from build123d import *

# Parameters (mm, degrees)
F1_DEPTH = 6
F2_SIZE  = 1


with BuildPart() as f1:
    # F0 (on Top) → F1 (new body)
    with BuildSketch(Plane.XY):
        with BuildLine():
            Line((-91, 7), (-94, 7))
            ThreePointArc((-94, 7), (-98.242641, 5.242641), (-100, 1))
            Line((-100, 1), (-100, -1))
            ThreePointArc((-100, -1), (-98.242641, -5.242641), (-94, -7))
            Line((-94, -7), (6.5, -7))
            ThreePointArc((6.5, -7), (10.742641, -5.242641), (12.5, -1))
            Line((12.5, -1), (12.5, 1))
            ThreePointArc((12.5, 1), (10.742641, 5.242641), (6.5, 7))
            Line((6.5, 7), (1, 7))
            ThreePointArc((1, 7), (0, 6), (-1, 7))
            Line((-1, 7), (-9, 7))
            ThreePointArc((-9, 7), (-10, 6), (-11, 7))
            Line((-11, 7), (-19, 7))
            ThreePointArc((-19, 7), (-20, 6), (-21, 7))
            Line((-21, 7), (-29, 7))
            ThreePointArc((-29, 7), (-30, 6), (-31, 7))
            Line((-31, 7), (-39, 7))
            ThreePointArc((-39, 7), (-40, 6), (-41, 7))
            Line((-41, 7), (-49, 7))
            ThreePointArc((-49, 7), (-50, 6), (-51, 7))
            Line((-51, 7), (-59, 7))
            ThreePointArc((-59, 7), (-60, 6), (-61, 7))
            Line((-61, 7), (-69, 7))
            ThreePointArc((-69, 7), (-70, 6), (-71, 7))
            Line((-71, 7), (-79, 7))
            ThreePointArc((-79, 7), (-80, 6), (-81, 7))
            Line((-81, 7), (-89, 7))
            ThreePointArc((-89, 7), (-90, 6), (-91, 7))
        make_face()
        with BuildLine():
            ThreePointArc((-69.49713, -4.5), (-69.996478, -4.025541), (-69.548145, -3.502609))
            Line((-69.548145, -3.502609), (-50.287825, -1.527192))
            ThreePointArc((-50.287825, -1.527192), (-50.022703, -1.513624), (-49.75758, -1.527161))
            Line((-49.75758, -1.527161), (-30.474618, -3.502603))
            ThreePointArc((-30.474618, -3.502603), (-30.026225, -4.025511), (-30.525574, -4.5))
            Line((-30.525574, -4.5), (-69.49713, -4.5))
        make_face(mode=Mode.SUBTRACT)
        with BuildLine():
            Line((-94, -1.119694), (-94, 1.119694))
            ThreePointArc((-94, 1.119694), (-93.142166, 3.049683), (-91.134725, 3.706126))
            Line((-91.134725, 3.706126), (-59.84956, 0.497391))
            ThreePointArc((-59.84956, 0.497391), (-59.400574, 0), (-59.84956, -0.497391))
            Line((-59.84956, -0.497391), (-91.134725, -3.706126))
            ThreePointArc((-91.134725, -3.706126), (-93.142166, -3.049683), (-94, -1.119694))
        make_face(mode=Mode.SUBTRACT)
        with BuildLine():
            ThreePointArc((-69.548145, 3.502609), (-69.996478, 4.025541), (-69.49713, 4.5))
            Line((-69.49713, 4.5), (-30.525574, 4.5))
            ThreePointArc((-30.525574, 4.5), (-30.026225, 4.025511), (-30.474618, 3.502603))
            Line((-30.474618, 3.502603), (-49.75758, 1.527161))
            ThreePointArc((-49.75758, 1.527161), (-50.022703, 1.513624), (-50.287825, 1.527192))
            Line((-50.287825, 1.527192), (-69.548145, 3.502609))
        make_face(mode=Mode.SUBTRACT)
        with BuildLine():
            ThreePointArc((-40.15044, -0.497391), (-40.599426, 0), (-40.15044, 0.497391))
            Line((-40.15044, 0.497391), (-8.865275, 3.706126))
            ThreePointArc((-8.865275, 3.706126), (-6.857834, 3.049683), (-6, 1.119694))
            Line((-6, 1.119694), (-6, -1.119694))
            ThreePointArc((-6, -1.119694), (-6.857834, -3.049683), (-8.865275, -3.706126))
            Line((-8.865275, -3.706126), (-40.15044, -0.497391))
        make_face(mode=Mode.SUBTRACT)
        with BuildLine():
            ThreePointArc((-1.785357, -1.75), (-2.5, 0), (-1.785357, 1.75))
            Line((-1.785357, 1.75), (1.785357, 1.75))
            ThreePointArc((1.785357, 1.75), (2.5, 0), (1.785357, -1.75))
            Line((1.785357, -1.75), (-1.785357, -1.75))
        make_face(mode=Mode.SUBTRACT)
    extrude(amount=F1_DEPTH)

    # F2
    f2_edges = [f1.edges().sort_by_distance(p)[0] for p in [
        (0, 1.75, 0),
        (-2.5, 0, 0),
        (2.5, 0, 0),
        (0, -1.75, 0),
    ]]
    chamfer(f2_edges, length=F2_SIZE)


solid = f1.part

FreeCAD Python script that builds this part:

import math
import FreeCAD as App
import Part
import Sketcher
from FreeCAD import Vector
Q = App.Units.Quantity


def edges_at(feature, points):
    """Names of the edges that pass closest to the given points."""
    edges = feature.Shape.Edges
    near = lambda p: min(range(len(edges)), key=lambda i: edges[i].distToShape(Part.Vertex(*p))[0])
    return sorted({f"Edge{near(p) + 1}" for p in points})

doc = App.newDocument("Part")
params = doc.addObject("Spreadsheet::Sheet", "Params")
for row, (alias, value) in enumerate([
    ("sketch1_radius", "5.999999 mm"),
    ("sketch1_radius2", "1 mm"),
    ("sketch1_radius3", "0.5 mm"),
    ("sketch1_radius4", "2.6 mm"),
    ("sketch1_radius5", "2.5 mm"),
    ("pad1_length", "6 mm"),
    ("chamfer_size", "1 mm"),
], start=1):
    params.set(f"A{row}", alias)
    params.set(f"B{row}", "=" + value)
    params.setAlias(f"B{row}", alias)

body = doc.addObject("PartDesign::Body", "Body")

sketch1 = body.newObject("Sketcher::SketchObject", "Sketch")
sketch1.AttachmentSupport = (doc.getObject("XY_Plane"), [""])
sketch1.MapMode = "FlatFace"
sketch1.addGeometry([
    Part.LineSegment(Vector(-91, 7, 0), Vector(-94, 7, 0)),
    Part.ArcOfCircle(Part.Circle(Vector(-94, 1, 0), Vector(0, 0, 1), 6), math.radians(90), math.radians(180)),
    Part.LineSegment(Vector(-100, 1, 0), Vector(-100, -1, 0)),
    Part.ArcOfCircle(Part.Circle(Vector(-94, -1, 0), Vector(0, 0, 1), 6), math.radians(180), math.radians(270)),
    Part.LineSegment(Vector(-94, -7, 0), Vector(6.5, -7, 0)),
    Part.ArcOfCircle(Part.Circle(Vector(6.5, -1, 0), Vector(0, 0, 1), 6), math.radians(-90), math.radians(0)),
    Part.LineSegment(Vector(12.5, -1, 0), Vector(12.5, 1, 0)),
    Part.ArcOfCircle(Part.Circle(Vector(6.5, 1, 0), Vector(0, 0, 1), 6), math.radians(0), math.radians(90)),
    Part.LineSegment(Vector(6.5, 7, 0), Vector(1, 7, 0)),
    Part.ArcOfCircle(Part.Circle(Vector(0, 7, 0), Vector(0, 0, 1), 1), math.radians(180), math.radians(360)),
    Part.LineSegment(Vector(-1, 7, 0), Vector(-9, 7, 0)),
    Part.ArcOfCircle(Part.Circle(Vector(-10, 7, 0), Vector(0, 0, 1), 1), math.radians(180), math.radians(360)),
    Part.LineSegment(Vector(-11, 7, 0), Vector(-19, 7, 0)),
    Part.ArcOfCircle(Part.Circle(Vector(-20, 7, 0), Vector(0, 0, 1), 1), math.radians(180), math.radians(360)),
    Part.LineSegment(Vector(-21, 7, 0), Vector(-29, 7, 0)),
    Part.ArcOfCircle(Part.Circle(Vector(-30, 7, 0), Vector(0, 0, 1), 1), math.radians(180), math.radians(360)),
    Part.LineSegment(Vector(-31, 7, 0), Vector(-39, 7, 0)),
    Part.ArcOfCircle(Part.Circle(Vector(-40, 7, 0), Vector(0, 0, 1), 1), math.radians(180), math.radians(360)),
    Part.LineSegment(Vector(-41, 7, 0), Vector(-49, 7, 0)),
    Part.ArcOfCircle(Part.Circle(Vector(-50, 7, 0), Vector(0, 0, 1), 1), math.radians(180), math.radians(360)),
    Part.LineSegment(Vector(-51, 7, 0), Vector(-59, 7, 0)),
    Part.ArcOfCircle(Part.Circle(Vector(-60, 7, 0), Vector(0, 0, 1), 1), math.radians(180), math.radians(360)),
    Part.LineSegment(Vector(-61, 7, 0), Vector(-69, 7, 0)),
    Part.ArcOfCircle(Part.Circle(Vector(-70, 7, 0), Vector(0, 0, 1), 1), math.radians(180), math.radians(360)),
    Part.LineSegment(Vector(-71, 7, 0), Vector(-79, 7, 0)),
    Part.ArcOfCircle(Part.Circle(Vector(-80, 7, 0), Vector(0, 0, 1), 1), math.radians(180), math.radians(360)),
    Part.LineSegment(Vector(-81, 7, 0), Vector(-89, 7, 0)),
    Part.ArcOfCircle(Part.Circle(Vector(-90, 7, 0), Vector(0, 0, 1), 1), math.radians(180), math.radians(360)),
    Part.LineSegment(Vector(-30.5, -4.5, 0), Vector(-69.5, -4.5, 0)),
    Part.ArcOfCircle(Part.Circle(Vector(-69.5, -4, 0), Vector(0, 0, 1), 0.5), math.radians(96), math.radians(270)),
    Part.LineSegment(Vector(-69.5, -3.5, 0), Vector(-50.3, -1.5, 0)),
    Part.ArcOfCircle(Part.Circle(Vector(-50, -4.1, 0), Vector(0, 0, 1), 2.6), math.radians(84.15), math.radians(95.86)),
    Part.LineSegment(Vector(-49.8, -1.5, 0), Vector(-30.5, -3.5, 0)),
    Part.ArcOfCircle(Part.Circle(Vector(-30.5, -4, 0), Vector(0, 0, 1), 0.5), math.radians(-90), math.radians(84)),
    Part.ArcOfCircle(Part.Circle(Vector(-91.4, -1.1, 0), Vector(0, 0, 1), 2.6), math.radians(-180), math.radians(-84)),
    Part.LineSegment(Vector(-94, -1.1, 0), Vector(-94, 1.1, 0)),
    Part.ArcOfCircle(Part.Circle(Vector(-91.4, 1.1, 0), Vector(0, 0, 1), 2.6), math.radians(84), math.radians(180)),
    Part.LineSegment(Vector(-91.1, 3.7, 0), Vector(-59.8, 0.5, 0)),
    Part.ArcOfCircle(Part.Circle(Vector(-59.9, 0, 0), Vector(0, 0, 1), 0.5), math.radians(-84), math.radians(84)),
    Part.LineSegment(Vector(-59.8, -0.5, 0), Vector(-91.1, -3.7, 0)),
    Part.LineSegment(Vector(-50.3, 1.5, 0), Vector(-69.5, 3.5, 0)),
    Part.ArcOfCircle(Part.Circle(Vector(-69.5, 4, 0), Vector(0, 0, 1), 0.5), math.radians(90), math.radians(264)),
    Part.LineSegment(Vector(-69.5, 4.5, 0), Vector(-30.5, 4.5, 0)),
    Part.ArcOfCircle(Part.Circle(Vector(-30.5, 4, 0), Vector(0, 0, 1), 0.5), math.radians(-84), math.radians(90)),
    Part.LineSegment(Vector(-30.5, 3.5, 0), Vector(-49.8, 1.5, 0)),
    Part.ArcOfCircle(Part.Circle(Vector(-50, 4.1, 0), Vector(0, 0, 1), 2.6), math.radians(-95.86), math.radians(-84.15)),
    Part.LineSegment(Vector(-8.9, -3.7, 0), Vector(-40.2, -0.5, 0)),
    Part.ArcOfCircle(Part.Circle(Vector(-40.1, 0, 0), Vector(0, 0, 1), 0.5), math.radians(96), math.radians(264)),
    Part.LineSegment(Vector(-40.2, 0.5, 0), Vector(-8.9, 3.7, 0)),
    Part.ArcOfCircle(Part.Circle(Vector(-8.6, 1.1, 0), Vector(0, 0, 1), 2.6), math.radians(0), math.radians(96)),
    Part.LineSegment(Vector(-6, 1.1, 0), Vector(-6, -1.1, 0)),
    Part.ArcOfCircle(Part.Circle(Vector(-8.6, -1.1, 0), Vector(0, 0, 1), 2.6), math.radians(-96), math.radians(0)),
    Part.LineSegment(Vector(1.8, -1.8, 0), Vector(-1.8, -1.8, 0)),
    Part.ArcOfCircle(Part.Circle(Vector(0, 0, 0), Vector(0, 0, 1), 2.5), math.radians(136), math.radians(224)),
    Part.LineSegment(Vector(-1.8, 1.8, 0), Vector(1.8, 1.8, 0)),
    Part.ArcOfCircle(Part.Circle(Vector(0, 0, 0), Vector(0, 0, 1), 2.5), math.radians(-44), math.radians(44)),
], False)
sketch1.addConstraint([
    Sketcher.Constraint("Tangent", 0, 2, 1, 1),
    Sketcher.Constraint("Tangent", 1, 2, 2, 1),
    Sketcher.Constraint("Tangent", 2, 2, 3, 1),
    Sketcher.Constraint("Tangent", 3, 2, 4, 1),
    Sketcher.Constraint("Tangent", 4, 2, 5, 1),
    Sketcher.Constraint("Tangent", 5, 2, 6, 1),
    Sketcher.Constraint("Tangent", 6, 2, 7, 1),
    Sketcher.Constraint("Tangent", 7, 2, 8, 1),
    Sketcher.Constraint("Coincident", 8, 2, 9, 2),
    Sketcher.Constraint("Coincident", 9, 1, 10, 1),
    Sketcher.Constraint("Coincident", 10, 2, 11, 2),
    Sketcher.Constraint("Coincident", 11, 1, 12, 1),
    Sketcher.Constraint("Coincident", 12, 2, 13, 2),
    Sketcher.Constraint("Coincident", 13, 1, 14, 1),
    Sketcher.Constraint("Coincident", 14, 2, 15, 2),
    Sketcher.Constraint("Coincident", 15, 1, 16, 1),
    Sketcher.Constraint("Coincident", 16, 2, 17, 2),
    Sketcher.Constraint("Coincident", 17, 1, 18, 1),
    Sketcher.Constraint("Coincident", 18, 2, 19, 2),
    Sketcher.Constraint("Coincident", 19, 1, 20, 1),
    Sketcher.Constraint("Coincident", 20, 2, 21, 2),
    Sketcher.Constraint("Coincident", 21, 1, 22, 1),
    Sketcher.Constraint("Coincident", 22, 2, 23, 2),
    Sketcher.Constraint("Coincident", 23, 1, 24, 1),
    Sketcher.Constraint("Coincident", 24, 2, 25, 2),
    Sketcher.Constraint("Coincident", 25, 1, 26, 1),
    Sketcher.Constraint("Coincident", 26, 2, 27, 2),
    Sketcher.Constraint("Coincident", 27, 1, 0, 1),
    Sketcher.Constraint("Tangent", 28, 2, 29, 2),
    Sketcher.Constraint("Tangent", 29, 1, 30, 1),
    Sketcher.Constraint("Tangent", 30, 2, 31, 2),
    Sketcher.Constraint("Tangent", 31, 1, 32, 1),
    Sketcher.Constraint("Tangent", 32, 2, 33, 2),
    Sketcher.Constraint("Tangent", 33, 1, 28, 1),
    Sketcher.Constraint("Tangent", 34, 1, 35, 1),
    Sketcher.Constraint("Tangent", 35, 2, 36, 2),
    Sketcher.Constraint("Tangent", 36, 1, 37, 1),
    Sketcher.Constraint("Tangent", 37, 2, 38, 2),
    Sketcher.Constraint("Tangent", 38, 1, 39, 1),
    Sketcher.Constraint("Tangent", 39, 2, 34, 2),
    Sketcher.Constraint("Tangent", 40, 2, 41, 2),
    Sketcher.Constraint("Tangent", 41, 1, 42, 1),
    Sketcher.Constraint("Tangent", 42, 2, 43, 2),
    Sketcher.Constraint("Tangent", 43, 1, 44, 1),
    Sketcher.Constraint("Tangent", 44, 2, 45, 2),
    Sketcher.Constraint("Tangent", 45, 1, 40, 1),
    Sketcher.Constraint("Tangent", 46, 2, 47, 2),
    Sketcher.Constraint("Tangent", 47, 1, 48, 1),
    Sketcher.Constraint("Tangent", 48, 2, 49, 2),
    Sketcher.Constraint("Tangent", 49, 1, 50, 1),
    Sketcher.Constraint("Tangent", 50, 2, 51, 2),
    Sketcher.Constraint("Tangent", 51, 1, 46, 1),
    Sketcher.Constraint("Coincident", 52, 2, 53, 2),
    Sketcher.Constraint("Coincident", 53, 1, 54, 1),
    Sketcher.Constraint("Coincident", 54, 2, 55, 2),
    Sketcher.Constraint("Coincident", 55, 1, 52, 1),
    Sketcher.Constraint("Horizontal", 0),
    Sketcher.Constraint("Vertical", 2),
    Sketcher.Constraint("Horizontal", 4),
    Sketcher.Constraint("Vertical", 6),
    Sketcher.Constraint("Horizontal", 8),
    Sketcher.Constraint("Horizontal", 10),
    Sketcher.Constraint("Horizontal", 12),
    Sketcher.Constraint("Horizontal", 14),
    Sketcher.Constraint("Horizontal", 16),
    Sketcher.Constraint("Horizontal", 18),
    Sketcher.Constraint("Horizontal", 20),
    Sketcher.Constraint("Horizontal", 22),
    Sketcher.Constraint("Horizontal", 24),
    Sketcher.Constraint("Horizontal", 26),
    Sketcher.Constraint("Horizontal", 28),
    Sketcher.Constraint("Vertical", 35),
    Sketcher.Constraint("Horizontal", 42),
    Sketcher.Constraint("Vertical", 50),
    Sketcher.Constraint("Horizontal", 52),
    Sketcher.Constraint("Horizontal", 54),
    Sketcher.Constraint("Coincident", 53, 3, -1, 1),
    Sketcher.Constraint("Coincident", 55, 3, -1, 1),
    Sketcher.Constraint("Equal", 1, 3),
    Sketcher.Constraint("Equal", 3, 5),
    Sketcher.Constraint("Equal", 5, 7),
    Sketcher.Constraint("Equal", 9, 11),
    Sketcher.Constraint("Equal", 11, 13),
    Sketcher.Constraint("Equal", 13, 15),
    Sketcher.Constraint("Equal", 15, 17),
    Sketcher.Constraint("Equal", 17, 19),
    Sketcher.Constraint("Equal", 19, 21),
    Sketcher.Constraint("Equal", 21, 23),
    Sketcher.Constraint("Equal", 23, 25),
    Sketcher.Constraint("Equal", 25, 27),
    Sketcher.Constraint("Equal", 29, 33),
    Sketcher.Constraint("Equal", 34, 36),
    Sketcher.Constraint("Equal", 33, 38),
    Sketcher.Constraint("Equal", 38, 41),
    Sketcher.Constraint("Equal", 41, 43),
    Sketcher.Constraint("Equal", 31, 45),
    Sketcher.Constraint("Equal", 43, 47),
    Sketcher.Constraint("Equal", 36, 49),
    Sketcher.Constraint("Equal", 49, 51),
    Sketcher.Constraint("Equal", 53, 55),
    Sketcher.Constraint("Symmetric", 8, 2, 9, 1, -2),
    Sketcher.Constraint("Symmetric", 29, 3, 41, 3, -1),
    Sketcher.Constraint("Symmetric", 31, 3, 45, 3, -1),
    Sketcher.Constraint("Symmetric", 37, 2, 38, 1, -1),
    Sketcher.Constraint("Symmetric", 46, 2, 47, 1, -1),
    Sketcher.Constraint("Parallel", 30, 39),
    Sketcher.Constraint("Parallel", 40, 46),
    Sketcher.Constraint("Horizontal", 1, 3, 7, 3),
    Sketcher.Constraint("Horizontal", 9, 3, 11, 3),
    Sketcher.Constraint("Horizontal", 11, 3, 13, 3),
    Sketcher.Constraint("Horizontal", 13, 3, 15, 3),
    Sketcher.Constraint("Horizontal", 15, 3, 17, 3),
    Sketcher.Constraint("Horizontal", 17, 3, 19, 3),
    Sketcher.Constraint("Horizontal", 19, 3, 21, 3),
    Sketcher.Constraint("Horizontal", 21, 3, 23, 3),
    Sketcher.Constraint("Horizontal", 23, 3, 25, 3),
    Sketcher.Constraint("Horizontal", 25, 3, 27, 3),
    Sketcher.Constraint("Horizontal", 36, 3, 49, 3),
    Sketcher.Constraint("Horizontal", 27, 3, 0, 2),
    Sketcher.Constraint("Horizontal", 10, 2, 11, 1),
    Sketcher.Constraint("Horizontal", 12, 2, 13, 1),
    Sketcher.Constraint("Horizontal", 14, 2, 15, 1),
    Sketcher.Constraint("Horizontal", 16, 2, 17, 1),
    Sketcher.Constraint("Horizontal", 18, 2, 19, 1),
    Sketcher.Constraint("Horizontal", 20, 2, 21, 1),
    Sketcher.Constraint("Horizontal", 22, 2, 23, 1),
    Sketcher.Constraint("Horizontal", 24, 2, 25, 1),
    Sketcher.Constraint("Vertical", 33, 3, 43, 3),
    Sketcher.Constraint("Vertical", 3, 2, 34, 1),
    Sketcher.Constraint("Vertical", 52, 2, 53, 1),
    Sketcher.Constraint("Equal", 10, 12),
    Sketcher.Constraint("Equal", 12, 14),
    Sketcher.Constraint("Equal", 14, 16),
    Sketcher.Constraint("Equal", 16, 18),
    Sketcher.Constraint("Equal", 18, 20),
    Sketcher.Constraint("Equal", 20, 22),
    Sketcher.Constraint("Equal", 22, 24),
    Sketcher.Constraint("Equal", 24, 26),
    Sketcher.Constraint("Radius", 1, Q("5.999999 mm")),
    Sketcher.Constraint("Radius", 9, Q("1 mm")),
    Sketcher.Constraint("Radius", 29, Q("0.5 mm")),
    Sketcher.Constraint("Radius", 34, Q("2.6 mm")),
    Sketcher.Constraint("Radius", 53, Q("2.5 mm")),
    Sketcher.Constraint("DistanceX", 0, 2, 0, 1, Q("3 mm")),
    Sketcher.Constraint("DistanceX", 10, 2, 10, 1, Q("8 mm")),
    Sketcher.Constraint("DistanceY", 2, 2, 2, 1, Q("2 mm")),
    Sketcher.Constraint("DistanceX", 4, 1, 4, 2, Q("100.5 mm")),
    Sketcher.Constraint("DistanceY", -1, 1, 1, 3, Q("1.000001 mm")),
    Sketcher.Constraint("DistanceY", 29, 3, -1, 1, Q("4 mm")),
    Sketcher.Constraint("DistanceX", 49, 1, -1, 1, Q("6 mm")),
    Sketcher.Constraint("DistanceY", 52, 2, -1, 1, Q("1.75 mm")),
    Sketcher.Constraint("Radius", 31, Q("2.600023 mm")),
    Sketcher.Constraint("Distance", 30, Q("19.361358 mm")),
    Sketcher.Constraint("DistanceX", 28, 2, 28, 1, Q("38.971556 mm")),
    Sketcher.Constraint("DistanceY", 35, 1, 35, 2, Q("2.239388 mm")),
    Sketcher.Constraint("DistanceX", 29, 3, -1, 1, Q("69.497131 mm")),
    Sketcher.Constraint("DistanceY", 31, 1, -1, 1, Q("1.527161 mm")),
])
sketch1.setExpression("Constraints[138]", "Params.sketch1_radius")
sketch1.setExpression("Constraints[139]", "Params.sketch1_radius2")
sketch1.setExpression("Constraints[140]", "Params.sketch1_radius3")
sketch1.setExpression("Constraints[141]", "Params.sketch1_radius4")
sketch1.setExpression("Constraints[142]", "Params.sketch1_radius5")
pad1 = body.newObject("PartDesign::Pad", "Pad")
pad1.Profile = sketch1
pad1.setExpression("Length", "Params.pad1_length")
doc.recompute()

chamfer = body.newObject("PartDesign::Chamfer", "Chamfer")
chamfer.Base = (pad1, edges_at(pad1, [
    (0, 1.75, 0),
    (-2.5, 0, 0),
    (2.5, 0, 0),
    (0, -1.75, 0),
]))
chamfer.setExpression("Size", "Params.chamfer_size")

doc.recompute()
